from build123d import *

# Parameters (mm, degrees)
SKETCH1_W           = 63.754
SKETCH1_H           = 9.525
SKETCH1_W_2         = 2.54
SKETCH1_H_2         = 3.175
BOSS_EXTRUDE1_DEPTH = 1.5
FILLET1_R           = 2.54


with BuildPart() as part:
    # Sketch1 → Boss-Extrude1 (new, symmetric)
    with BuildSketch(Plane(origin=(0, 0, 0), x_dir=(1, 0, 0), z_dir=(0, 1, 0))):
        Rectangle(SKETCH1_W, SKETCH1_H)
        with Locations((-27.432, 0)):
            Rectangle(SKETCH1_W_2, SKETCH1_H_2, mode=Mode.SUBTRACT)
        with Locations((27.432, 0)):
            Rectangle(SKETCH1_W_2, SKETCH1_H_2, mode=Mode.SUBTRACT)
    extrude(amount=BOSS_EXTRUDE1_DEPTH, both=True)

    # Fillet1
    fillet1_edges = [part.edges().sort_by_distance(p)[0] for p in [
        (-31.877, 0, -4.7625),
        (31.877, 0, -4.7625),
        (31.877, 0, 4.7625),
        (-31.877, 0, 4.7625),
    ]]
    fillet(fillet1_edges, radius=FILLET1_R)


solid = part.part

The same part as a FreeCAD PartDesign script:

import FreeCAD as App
import Part
import Sketcher
from FreeCAD import Vector
Q = App.Units.Quantity


def edges_at(feature, points):
    """Names of the edges that pass closest to the given points."""
    edges = feature.Shape.Edges
    near = lambda p: min(range(len(edges)), key=lambda i: edges[i].distToShape(Part.Vertex(*p))[0])
    return sorted({f"Edge{near(p) + 1}" for p in points})

doc = App.newDocument("Part")
body = doc.addObject("PartDesign::Body", "Body")

# Sketch on XZ plane
sketch1 = body.newObject("Sketcher::SketchObject", "Sketch")
sketch1.AttachmentSupport = (doc.getObject("XZ_Plane"), [""])
sketch1.MapMode = "FlatFace"
sketch1.addGeometry([
    Part.LineSegment(Vector(-31.9, -4.8, 0), Vector(-31.9, 4.8, 0)),  # 0
    Part.LineSegment(Vector(-31.9, 4.8, 0), Vector(31.9, 4.8, 0)),  # 1
    Part.LineSegment(Vector(31.9, 4.8, 0), Vector(31.9, -4.8, 0)),  # 2
    Part.LineSegment(Vector(31.9, -4.8, 0), Vector(-31.9, -4.8, 0)),  # 3
    Part.LineSegment(Vector(-26.2, 1.6, 0), Vector(-28.7, 1.6, 0)),  # 4
    Part.LineSegment(Vector(-28.7, 1.6, 0), Vector(-28.7, -1.6, 0)),  # 5
    Part.LineSegment(Vector(-28.7, -1.6, 0), Vector(-26.2, -1.6, 0)),  # 6
    Part.LineSegment(Vector(-26.2, -1.6, 0), Vector(-26.2, 1.6, 0)),  # 7
    Part.LineSegment(Vector(28.7, 1.6, 0), Vector(26.2, 1.6, 0)),  # 8
    Part.LineSegment(Vector(26.2, 1.6, 0), Vector(26.2, -1.6, 0)),  # 9
    Part.LineSegment(Vector(26.2, -1.6, 0), Vector(28.7, -1.6, 0)),  # 10
    Part.LineSegment(Vector(28.7, -1.6, 0), Vector(28.7, 1.6, 0)),  # 11
], False)
sketch1.addConstraint([
    Sketcher.Constraint("Coincident", 0, 2, 1, 1),
    Sketcher.Constraint("Coincident", 1, 2, 2, 1),
    Sketcher.Constraint("Coincident", 2, 2, 3, 1),
    Sketcher.Constraint("Coincident", 3, 2, 0, 1),
    Sketcher.Constraint("Coincident", 4, 2, 5, 1),
    Sketcher.Constraint("Coincident", 5, 2, 6, 1),
    Sketcher.Constraint("Coincident", 6, 2, 7, 1),
    Sketcher.Constraint("Coincident", 7, 2, 4, 1),
    Sketcher.Constraint("Coincident", 8, 2, 9, 1),
    Sketcher.Constraint("Coincident", 9, 2, 10, 1),
    Sketcher.Constraint("Coincident", 10, 2, 11, 1),
    Sketcher.Constraint("Coincident", 11, 2, 8, 1),
    Sketcher.Constraint("Vertical", 0),
    Sketcher.Constraint("Horizontal", 1),
    Sketcher.Constraint("Vertical", 2),
    Sketcher.Constraint("Horizontal", 3),
    Sketcher.Constraint("Horizontal", 4),
    Sketcher.Constraint("Vertical", 5),
    Sketcher.Constraint("Horizontal", 6),
    Sketcher.Constraint("Vertical", 7),
    Sketcher.Constraint("Horizontal", 8),
    Sketcher.Constraint("Vertical", 9),
    Sketcher.Constraint("Horizontal", 10),
    Sketcher.Constraint("Vertical", 11),
    Sketcher.Constraint("Symmetric", 0, 2, 2, 2, -1, 1),
    Sketcher.Constraint("Symmetric", 6, 2, 8, 2, -1, 1),
    Sketcher.Constraint("Symmetric", 4, 2, 10, 2, -1, 1),
    Sketcher.Constraint("Horizontal", 7, 2, 8, 2),
    Sketcher.Constraint("DistanceX", 4, 2, 4, 1, Q("0.1 in")),
    Sketcher.Constraint("DistanceX", 1, 1, 1, 2, Q("2.51 in")),
    Sketcher.Constraint("DistanceY", 0, 1, 0, 2, Q("0.375 in")),
    Sketcher.Constraint("DistanceY", 5, 2, 5, 1, Q("0.125 in")),
    Sketcher.Constraint("DistanceX", 4, 2, -1, 1, Q("1.13 in")),
])
pad1 = body.newObject("PartDesign::Pad", "Pad")
pad1.Profile = sketch1
pad1.Length = 3
pad1.Midplane = True
doc.recompute()

fillet = body.newObject("PartDesign::Fillet", "Fillet")
fillet.Base = (pad1, edges_at(pad1, [
    (-31.877, 0, -4.763),
    (31.877, 0, -4.763),
    (31.877, 0, 4.763),
    (-31.877, 0, 4.763),
]))
fillet.Radius = Q("0.1 in")

doc.recompute()
